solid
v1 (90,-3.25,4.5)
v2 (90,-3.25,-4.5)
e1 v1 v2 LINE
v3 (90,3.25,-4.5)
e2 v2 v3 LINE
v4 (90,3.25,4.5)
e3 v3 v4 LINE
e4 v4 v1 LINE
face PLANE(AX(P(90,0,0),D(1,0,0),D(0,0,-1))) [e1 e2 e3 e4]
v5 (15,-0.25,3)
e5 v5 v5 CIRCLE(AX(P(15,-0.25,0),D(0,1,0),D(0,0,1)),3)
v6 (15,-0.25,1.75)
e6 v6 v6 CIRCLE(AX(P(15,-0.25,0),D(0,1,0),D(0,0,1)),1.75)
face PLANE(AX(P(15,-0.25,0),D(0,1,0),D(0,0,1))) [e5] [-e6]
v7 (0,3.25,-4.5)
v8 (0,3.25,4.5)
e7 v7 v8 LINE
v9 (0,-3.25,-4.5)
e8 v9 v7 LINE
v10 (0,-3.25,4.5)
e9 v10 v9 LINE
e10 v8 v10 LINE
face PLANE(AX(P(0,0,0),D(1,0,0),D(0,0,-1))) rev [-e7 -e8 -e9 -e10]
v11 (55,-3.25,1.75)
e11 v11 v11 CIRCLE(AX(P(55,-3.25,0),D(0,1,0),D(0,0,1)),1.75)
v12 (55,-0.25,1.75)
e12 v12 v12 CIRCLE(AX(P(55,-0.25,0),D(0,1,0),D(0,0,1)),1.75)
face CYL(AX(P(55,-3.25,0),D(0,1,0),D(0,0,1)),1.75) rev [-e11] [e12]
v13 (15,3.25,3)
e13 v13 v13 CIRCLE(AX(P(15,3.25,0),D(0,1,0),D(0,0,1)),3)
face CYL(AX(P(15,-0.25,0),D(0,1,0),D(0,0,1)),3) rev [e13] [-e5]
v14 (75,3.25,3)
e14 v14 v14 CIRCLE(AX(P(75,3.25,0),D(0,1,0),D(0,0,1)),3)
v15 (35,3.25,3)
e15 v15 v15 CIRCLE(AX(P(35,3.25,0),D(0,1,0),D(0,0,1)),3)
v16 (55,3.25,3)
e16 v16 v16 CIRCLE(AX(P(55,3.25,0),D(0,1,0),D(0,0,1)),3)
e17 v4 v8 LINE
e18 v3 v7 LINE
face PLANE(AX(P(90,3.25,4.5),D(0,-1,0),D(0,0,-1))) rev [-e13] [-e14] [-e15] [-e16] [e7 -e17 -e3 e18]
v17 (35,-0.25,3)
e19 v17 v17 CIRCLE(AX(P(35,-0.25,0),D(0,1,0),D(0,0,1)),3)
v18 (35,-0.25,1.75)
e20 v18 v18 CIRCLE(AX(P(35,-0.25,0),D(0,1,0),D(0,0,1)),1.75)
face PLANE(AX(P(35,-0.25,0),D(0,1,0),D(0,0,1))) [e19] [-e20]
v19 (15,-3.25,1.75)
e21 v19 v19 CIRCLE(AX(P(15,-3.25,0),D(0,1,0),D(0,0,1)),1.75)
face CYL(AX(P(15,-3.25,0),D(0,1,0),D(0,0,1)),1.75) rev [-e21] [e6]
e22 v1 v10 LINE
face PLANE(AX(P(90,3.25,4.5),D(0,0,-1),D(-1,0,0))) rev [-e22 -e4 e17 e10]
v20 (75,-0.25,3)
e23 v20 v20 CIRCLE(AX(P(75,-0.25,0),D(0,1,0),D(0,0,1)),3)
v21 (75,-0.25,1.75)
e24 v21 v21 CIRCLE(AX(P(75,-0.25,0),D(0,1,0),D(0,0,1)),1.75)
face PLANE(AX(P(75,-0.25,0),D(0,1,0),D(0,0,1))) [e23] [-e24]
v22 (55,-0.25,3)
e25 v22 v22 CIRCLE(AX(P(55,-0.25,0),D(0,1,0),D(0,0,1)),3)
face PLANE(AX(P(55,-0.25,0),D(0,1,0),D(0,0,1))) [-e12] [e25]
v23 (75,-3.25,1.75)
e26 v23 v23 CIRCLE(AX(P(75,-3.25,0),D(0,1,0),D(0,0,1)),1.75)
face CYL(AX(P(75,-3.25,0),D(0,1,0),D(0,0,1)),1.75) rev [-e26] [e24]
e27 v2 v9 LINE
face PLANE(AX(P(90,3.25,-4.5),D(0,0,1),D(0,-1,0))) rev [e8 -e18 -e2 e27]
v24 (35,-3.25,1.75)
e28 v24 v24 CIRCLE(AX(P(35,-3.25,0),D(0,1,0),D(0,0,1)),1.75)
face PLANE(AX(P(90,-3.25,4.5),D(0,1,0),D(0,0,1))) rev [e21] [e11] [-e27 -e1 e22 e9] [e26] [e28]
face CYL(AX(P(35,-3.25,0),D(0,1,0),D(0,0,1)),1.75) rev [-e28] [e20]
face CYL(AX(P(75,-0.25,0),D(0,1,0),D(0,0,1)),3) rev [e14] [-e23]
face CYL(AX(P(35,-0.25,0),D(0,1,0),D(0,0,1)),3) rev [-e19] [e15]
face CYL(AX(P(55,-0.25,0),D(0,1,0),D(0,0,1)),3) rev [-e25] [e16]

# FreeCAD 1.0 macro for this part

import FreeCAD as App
import Part
import Sketcher
from FreeCAD import Vector

doc = App.newDocument("Part")
body = doc.addObject("PartDesign::Body", "Body")

# Sketch on YZ plane
sketch1 = body.newObject("Sketcher::SketchObject", "Sketch")
sketch1.AttachmentSupport = (doc.getObject("YZ_Plane"), [""])
sketch1.MapMode = "FlatFace"
sketch1.addGeometry([
    Part.LineSegment(Vector(3, 4, 0), Vector(-3, 4, 0)),
    Part.LineSegment(Vector(-3, 4, 0), Vector(-3, -4, 0)),
    Part.LineSegment(Vector(-3, -4, 0), Vector(3, -4, 0)),
    Part.LineSegment(Vector(3, -4, 0), Vector(3, 4, 0)),
], False)
sketch1.addConstraint([
    Sketcher.Constraint("Coincident", 0, 2, 1, 1),
    Sketcher.Constraint("Coincident", 1, 2, 2, 1),
    Sketcher.Constraint("Coincident", 2, 2, 3, 1),
    Sketcher.Constraint("Coincident", 3, 2, 0, 1),
    Sketcher.Constraint("Horizontal", 0),
    Sketcher.Constraint("Vertical", 1),
    Sketcher.Constraint("Horizontal", 2),
    Sketcher.Constraint("Vertical", 3),
    Sketcher.Constraint("Symmetric", 0, 2, 2, 2, -1, 1),
    Sketcher.Constraint("DistanceY", 1, 2, 1, 1, 9.0),
    Sketcher.Constraint("DistanceX", 0, 2, 0, 1, 6.5),
])
pad1 = body.newObject("PartDesign::Pad", "Pad")
pad1.Profile = sketch1
pad1.Length = 90

# Sketch on XZ plane
sketch2 = body.newObject("Sketcher::SketchObject", "Sketch001")
sketch2.AttachmentSupport = (doc.getObject("XZ_Plane"), [""])
sketch2.MapMode = "FlatFace"
sketch2.AttachmentOffset = App.Placement(Vector(0, 0, -3.25), App.Rotation())
sketch2.addGeometry([
    Part.Circle(Vector(15, 0, 0), Vector(0, 0, 1), 3),  # 0
    Part.Circle(Vector(35, 0, 0), Vector(0, 0, 1), 3),  # 1
    Part.Circle(Vector(55, 0, 0), Vector(0, 0, 1), 3),  # 2
    Part.Circle(Vector(75, 0, 0), Vector(0, 0, 1), 3),  # 3
    Part.Circle(Vector(95, 0, 0), Vector(0, 0, 1), 3),  # 4
    Part.Circle(Vector(115, 0, 0), Vector(0, 0, 1), 3),  # 5
    Part.Circle(Vector(135, 0, 0), Vector(0, 0, 1), 3),  # 6
    Part.Circle(Vector(155, 0, 0), Vector(0, 0, 1), 3),  # 7
    Part.Circle(Vector(175, 0, 0), Vector(0, 0, 1), 3),  # 8
    Part.Circle(Vector(195, 0, 0), Vector(0, 0, 1), 3),  # 9
    Part.Circle(Vector(215, 0, 0), Vector(0, 0, 1), 3),  # 10
    Part.Circle(Vector(235, 0, 0), Vector(0, 0, 1), 3),  # 11
    Part.Circle(Vector(255, 0, 0), Vector(0, 0, 1), 3),  # 12
], False)
sketch2.addConstraint([
    Sketcher.Constraint("Equal", 0, 1),
    Sketcher.Constraint("Equal", 1, 2),
    Sketcher.Constraint("Equal", 2, 3),
    Sketcher.Constraint("Equal", 3, 4),
    Sketcher.Constraint("Equal", 4, 5),
    Sketcher.Constraint("Equal", 5, 6),
    Sketcher.Constraint("Equal", 6, 7),
    Sketcher.Constraint("Equal", 7, 8),
    Sketcher.Constraint("Equal", 8, 9),
    Sketcher.Constraint("Equal", 9, 10),
    Sketcher.Constraint("Equal", 10, 11),
    Sketcher.Constraint("Equal", 11, 12),
    Sketcher.Constraint("PointOnObject", 0, 3, -1),
    Sketcher.Constraint("PointOnObject", 1, 3, -1),
    Sketcher.Constraint("PointOnObject", 2, 3, -1),
    Sketcher.Constraint("PointOnObject", 3, 3, -1),
    Sketcher.Constraint("PointOnObject", 4, 3, -1),
    Sketcher.Constraint("PointOnObject", 5, 3, -1),
    Sketcher.Constraint("PointOnObject", 6, 3, -1),
    Sketcher.Constraint("PointOnObject", 7, 3, -1),
    Sketcher.Constraint("PointOnObject", 8, 3, -1),
    Sketcher.Constraint("PointOnObject", 9, 3, -1),
    Sketcher.Constraint("PointOnObject", 10, 3, -1),
    Sketcher.Constraint("PointOnObject", 11, 3, -1),
    Sketcher.Constraint("PointOnObject", 12, 3, -1),
    Sketcher.Constraint("Diameter", 0, 6.0),
    Sketcher.Constraint("DistanceX", -1, 1, 0, 3, 15.0),
    Sketcher.Constraint("DistanceX", -1, 1, 1, 3, 35.0),
    Sketcher.Constraint("DistanceX", -1, 1, 2, 3, 55.0),
    Sketcher.Constraint("DistanceX", -1, 1, 3, 3, 75.0),
    Sketcher.Constraint("DistanceX", -1, 1, 4, 3, 95.0),
    Sketcher.Constraint("DistanceX", -1, 1, 5, 3, 115.0),
    Sketcher.Constraint("DistanceX", -1, 1, 6, 3, 135.0),
    Sketcher.Constraint("DistanceX", -1, 1, 7, 3, 155.0),
    Sketcher.Constraint("DistanceX", -1, 1, 8, 3, 175.0),
    Sketcher.Constraint("DistanceX", -1, 1, 9, 3, 195.0),
    Sketcher.Constraint("DistanceX", -1, 1, 10, 3, 215.0),
    Sketcher.Constraint("DistanceX", -1, 1, 11, 3, 235.0),
    Sketcher.Constraint("DistanceX", -1, 1, 12, 3, 255.0),
])
pocket1 = body.newObject("PartDesign::Pocket", "Pocket")
pocket1.Profile = sketch2
pocket1.Length = 3.5
pocket1.Reversed = True

# Sketch on XZ plane
sketch3 = body.newObject("Sketcher::SketchObject", "Sketch002")
sketch3.AttachmentSupport = (doc.getObject("XZ_Plane"), [""])
sketch3.MapMode = "FlatFace"
sketch3.AttachmentOffset = App.Placement(Vector(0, 0, -3.25), App.Rotation())
sketch3.addGeometry([
    Part.Circle(Vector(15, 0, 0), Vector(0, 0, 1), 1.8),  # 0
    Part.Circle(Vector(35, 0, 0), Vector(0, 0, 1), 1.8),  # 1
    Part.Circle(Vector(55, 0, 0), Vector(0, 0, 1), 1.8),  # 2
    Part.Circle(Vector(75, 0, 0), Vector(0, 0, 1), 1.8),  # 3
    Part.Circle(Vector(95, 0, 0), Vector(0, 0, 1), 1.8),  # 4
    Part.Circle(Vector(115, 0, 0), Vector(0, 0, 1), 1.8),  # 5
    Part.Circle(Vector(135, 0, 0), Vector(0, 0, 1), 1.8),  # 6
    Part.Circle(Vector(155, 0, 0), Vector(0, 0, 1), 1.8),  # 7
    Part.Circle(Vector(175, 0, 0), Vector(0, 0, 1), 1.8),  # 8
    Part.Circle(Vector(195, 0, 0), Vector(0, 0, 1), 1.8),  # 9
    Part.Circle(Vector(215, 0, 0), Vector(0, 0, 1), 1.8),  # 10
    Part.Circle(Vector(235, 0, 0), Vector(0, 0, 1), 1.8),  # 11
    Part.Circle(Vector(255, 0, 0), Vector(0, 0, 1), 1.8),  # 12
], False)
sketch3.addConstraint([
    Sketcher.Constraint("Equal", 0, 1),
    Sketcher.Constraint("Equal", 1, 2),
    Sketcher.Constraint("Equal", 2, 3),
    Sketcher.Constraint("Equal", 3, 4),
    Sketcher.Constraint("Equal", 4, 5),
    Sketcher.Constraint("Equal", 5, 6),
    Sketcher.Constraint("Equal", 6, 7),
    Sketcher.Constraint("Equal", 7, 8),
    Sketcher.Constraint("Equal", 8, 9),
    Sketcher.Constraint("Equal", 9, 10),
    Sketcher.Constraint("Equal", 10, 11),
    Sketcher.Constraint("Equal", 11, 12),
    Sketcher.Constraint("PointOnObject", 0, 3, -1),
    Sketcher.Constraint("PointOnObject", 1, 3, -1),
    Sketcher.Constraint("PointOnObject", 2, 3, -1),
    Sketcher.Constraint("PointOnObject", 3, 3, -1),
    Sketcher.Constraint("PointOnObject", 4, 3, -1),
    Sketcher.Constraint("PointOnObject", 5, 3, -1),
    Sketcher.Constraint("PointOnObject", 6, 3, -1),
    Sketcher.Constraint("PointOnObject", 7, 3, -1),
    Sketcher.Constraint("PointOnObject", 8, 3, -1),
    Sketcher.Constraint("PointOnObject", 9, 3, -1),
    Sketcher.Constraint("PointOnObject", 10, 3, -1),
    Sketcher.Constraint("PointOnObject", 11, 3, -1),
    Sketcher.Constraint("PointOnObject", 12, 3, -1),
    Sketcher.Constraint("Diameter", 0, 3.5),
    Sketcher.Constraint("DistanceX", -1, 1, 0, 3, 15.0),
    Sketcher.Constraint("DistanceX", -1, 1, 1, 3, 35.0),
    Sketcher.Constraint("DistanceX", -1, 1, 2, 3, 55.0),
    Sketcher.Constraint("DistanceX", -1, 1, 3, 3, 75.0),
    Sketcher.Constraint("DistanceX", -1, 1, 4, 3, 95.0),
    Sketcher.Constraint("DistanceX", -1, 1, 5, 3, 115.0),
    Sketcher.Constraint("DistanceX", -1, 1, 6, 3, 135.0),
    Sketcher.Constraint("DistanceX", -1, 1, 7, 3, 155.0),
    Sketcher.Constraint("DistanceX", -1, 1, 8, 3, 175.0),
    Sketcher.Constraint("DistanceX", -1, 1, 9, 3, 195.0),
    Sketcher.Constraint("DistanceX", -1, 1, 10, 3, 215.0),
    Sketcher.Constraint("DistanceX", -1, 1, 11, 3, 235.0),
    Sketcher.Constraint("DistanceX", -1, 1, 12, 3, 255.0),
])
pocket2 = body.newObject("PartDesign::Pocket", "Pocket001")
pocket2.Profile = sketch3
pocket2.Type = "ThroughAll"
pocket2.Reversed = True

doc.recompute()
